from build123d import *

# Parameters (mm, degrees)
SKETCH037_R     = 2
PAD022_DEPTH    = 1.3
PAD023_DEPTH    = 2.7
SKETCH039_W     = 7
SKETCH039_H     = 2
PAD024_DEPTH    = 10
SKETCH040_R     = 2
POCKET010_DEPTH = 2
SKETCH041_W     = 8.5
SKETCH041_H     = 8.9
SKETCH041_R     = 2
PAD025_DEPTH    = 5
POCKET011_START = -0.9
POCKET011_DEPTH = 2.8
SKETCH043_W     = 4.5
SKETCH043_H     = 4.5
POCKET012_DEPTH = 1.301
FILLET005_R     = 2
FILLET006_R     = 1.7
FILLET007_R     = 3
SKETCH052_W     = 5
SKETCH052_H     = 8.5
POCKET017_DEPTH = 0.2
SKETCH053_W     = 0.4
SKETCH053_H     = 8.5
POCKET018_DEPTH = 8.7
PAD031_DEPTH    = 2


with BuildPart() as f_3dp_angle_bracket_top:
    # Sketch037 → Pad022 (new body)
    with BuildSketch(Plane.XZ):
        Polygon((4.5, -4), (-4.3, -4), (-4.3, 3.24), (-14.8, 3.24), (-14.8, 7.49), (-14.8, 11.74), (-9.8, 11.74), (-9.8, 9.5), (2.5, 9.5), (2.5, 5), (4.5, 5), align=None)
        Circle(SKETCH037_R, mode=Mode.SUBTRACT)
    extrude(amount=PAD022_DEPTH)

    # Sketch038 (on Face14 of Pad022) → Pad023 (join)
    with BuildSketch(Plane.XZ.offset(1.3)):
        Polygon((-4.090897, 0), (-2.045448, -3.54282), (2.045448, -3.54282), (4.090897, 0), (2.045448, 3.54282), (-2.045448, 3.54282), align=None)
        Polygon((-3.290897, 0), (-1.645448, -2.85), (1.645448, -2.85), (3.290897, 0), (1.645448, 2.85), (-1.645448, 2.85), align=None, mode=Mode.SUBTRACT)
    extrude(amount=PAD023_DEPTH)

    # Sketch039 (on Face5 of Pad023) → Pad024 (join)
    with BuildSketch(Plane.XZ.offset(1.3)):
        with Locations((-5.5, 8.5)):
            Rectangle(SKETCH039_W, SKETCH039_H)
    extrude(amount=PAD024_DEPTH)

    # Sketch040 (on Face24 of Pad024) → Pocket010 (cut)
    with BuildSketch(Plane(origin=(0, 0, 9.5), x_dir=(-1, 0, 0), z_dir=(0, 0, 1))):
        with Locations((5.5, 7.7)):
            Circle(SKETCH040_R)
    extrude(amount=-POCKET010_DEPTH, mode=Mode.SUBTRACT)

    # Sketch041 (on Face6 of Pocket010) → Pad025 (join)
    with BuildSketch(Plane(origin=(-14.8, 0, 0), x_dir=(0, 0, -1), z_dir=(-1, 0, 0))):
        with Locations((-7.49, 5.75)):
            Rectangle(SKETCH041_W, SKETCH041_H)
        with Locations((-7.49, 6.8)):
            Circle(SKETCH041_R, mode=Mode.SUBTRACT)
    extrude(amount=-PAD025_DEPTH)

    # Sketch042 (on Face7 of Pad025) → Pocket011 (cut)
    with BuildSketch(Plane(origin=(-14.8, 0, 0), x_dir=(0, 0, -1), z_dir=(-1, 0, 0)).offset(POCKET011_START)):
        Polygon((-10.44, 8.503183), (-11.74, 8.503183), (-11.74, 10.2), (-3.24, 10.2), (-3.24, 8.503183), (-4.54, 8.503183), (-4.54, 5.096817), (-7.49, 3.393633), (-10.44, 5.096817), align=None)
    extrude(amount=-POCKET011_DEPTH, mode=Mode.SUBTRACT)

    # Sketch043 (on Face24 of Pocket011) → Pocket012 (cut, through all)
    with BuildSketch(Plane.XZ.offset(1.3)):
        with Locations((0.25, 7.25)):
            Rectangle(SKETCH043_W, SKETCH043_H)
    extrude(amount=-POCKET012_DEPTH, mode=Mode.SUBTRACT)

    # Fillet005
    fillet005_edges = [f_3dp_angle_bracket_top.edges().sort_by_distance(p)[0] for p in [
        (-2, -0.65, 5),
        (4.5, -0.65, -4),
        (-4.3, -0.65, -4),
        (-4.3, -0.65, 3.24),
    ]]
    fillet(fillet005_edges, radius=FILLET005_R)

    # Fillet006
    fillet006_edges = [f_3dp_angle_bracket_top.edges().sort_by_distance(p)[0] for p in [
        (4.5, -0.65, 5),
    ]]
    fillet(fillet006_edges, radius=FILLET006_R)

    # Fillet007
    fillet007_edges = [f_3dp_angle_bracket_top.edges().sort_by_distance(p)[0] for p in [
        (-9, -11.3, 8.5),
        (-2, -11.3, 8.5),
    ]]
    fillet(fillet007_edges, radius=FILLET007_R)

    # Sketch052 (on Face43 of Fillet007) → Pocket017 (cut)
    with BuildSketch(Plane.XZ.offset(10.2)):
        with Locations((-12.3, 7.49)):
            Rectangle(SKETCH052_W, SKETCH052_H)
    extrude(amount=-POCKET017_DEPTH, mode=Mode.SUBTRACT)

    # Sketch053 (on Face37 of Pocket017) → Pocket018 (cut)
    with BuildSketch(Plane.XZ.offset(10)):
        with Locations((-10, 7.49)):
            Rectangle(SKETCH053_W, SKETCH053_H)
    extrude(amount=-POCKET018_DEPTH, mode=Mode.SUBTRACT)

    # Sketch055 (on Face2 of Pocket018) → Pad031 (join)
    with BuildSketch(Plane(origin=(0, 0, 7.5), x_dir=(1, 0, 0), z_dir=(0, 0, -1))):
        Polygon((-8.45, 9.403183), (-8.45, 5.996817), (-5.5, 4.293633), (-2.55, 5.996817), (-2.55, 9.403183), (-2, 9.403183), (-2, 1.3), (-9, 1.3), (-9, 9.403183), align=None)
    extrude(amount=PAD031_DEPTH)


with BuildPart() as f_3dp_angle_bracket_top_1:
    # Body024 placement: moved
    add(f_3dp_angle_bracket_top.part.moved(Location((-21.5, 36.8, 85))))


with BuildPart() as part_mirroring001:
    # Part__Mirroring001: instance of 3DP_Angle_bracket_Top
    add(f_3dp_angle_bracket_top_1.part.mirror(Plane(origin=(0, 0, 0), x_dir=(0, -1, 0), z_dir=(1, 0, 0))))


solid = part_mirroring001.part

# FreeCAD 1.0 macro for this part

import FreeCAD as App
import Part
import Sketcher

V = App.Vector
Q = App.Units.Quantity


def edges_at(feature, points):
    """Names of the edges that pass closest to the given points."""
    edges = feature.Shape.Edges
    near = lambda p: min(range(len(edges)), key=lambda i: edges[i].distToShape(Part.Vertex(*p))[0])
    return sorted({f"Edge{near(p) + 1}" for p in points})


def add_polygon(sketch, points):
    """Adds a closed chain of lines whose ends are joined by coincident constraints."""
    first, n = sketch.GeometryCount, len(points)
    for a, b in zip(points, points[1:] + points[:1]):
        sketch.addGeometry(Part.LineSegment(App.Vector(*a, 0), App.Vector(*b, 0)), False)
    for i in range(n):
        sketch.addConstraint(Sketcher.Constraint("Coincident", first + i, 2, first + (i + 1) % n, 1))

doc = App.newDocument("Part")
body = doc.addObject("PartDesign::Body", "Body")

# Sketch on XZ plane
sketch1 = body.newObject("Sketcher::SketchObject", "Sketch")
sketch1.AttachmentSupport = (doc.getObject("XZ_Plane"), [""])
sketch1.MapMode = "FlatFace"
add_polygon(sketch1, [(-4.3, -4), (4.5, -4), (4.5, 5), (2.5, 5), (2.5, 9.5), (-9.8, 9.5), (-9.8, 11.74), (-14.8, 11.74), (-14.8, 3.24), (-4.3, 3.24)])  # lines 0-9
sketch1.addGeometry(Part.Circle(V(0, 0, 0), V(0, 0, 1), 2), False)  # 10
sketch1.addConstraint(Sketcher.Constraint("Horizontal", 0))
sketch1.addConstraint(Sketcher.Constraint("Vertical", 1))
sketch1.addConstraint(Sketcher.Constraint("Horizontal", 2))
sketch1.addConstraint(Sketcher.Constraint("Vertical", 3))
sketch1.addConstraint(Sketcher.Constraint("Horizontal", 4))
sketch1.addConstraint(Sketcher.Constraint("Vertical", 5))
sketch1.addConstraint(Sketcher.Constraint("Horizontal", 6))
sketch1.addConstraint(Sketcher.Constraint("Vertical", 7))
sketch1.addConstraint(Sketcher.Constraint("Horizontal", 8))
sketch1.addConstraint(Sketcher.Constraint("Vertical", 9))
sketch1.addConstraint(Sketcher.Constraint("Coincident", 10, 3, -1, 1))
sketch1.addConstraint(Sketcher.Constraint("Diameter", 10, 4.0))
sketch1.addConstraint(Sketcher.Constraint("DistanceX", 2, 2, 2, 1, 2.0))
sketch1.addConstraint(Sketcher.Constraint("DistanceX", 6, 2, 6, 1, 5.0))
sketch1.addConstraint(Sketcher.Constraint("DistanceY", 1, 1, 1, 2, 9.0))
sketch1.addConstraint(Sketcher.Constraint("DistanceX", 0, 1, 0, 2, 8.8))
sketch1.addConstraint(Sketcher.Constraint("DistanceX", 4, 2, 4, 1, 12.3))
sketch1.addConstraint(Sketcher.Constraint("DistanceY", 3, 1, 3, 2, 4.5))
sketch1.addConstraint(Sketcher.Constraint("DistanceY", 7, 2, 7, 1, 8.5))
sketch1.addConstraint(Sketcher.Constraint("DistanceY", 0, 2, -1, 1, 4.0))
sketch1.addConstraint(Sketcher.Constraint("DistanceY", 5, 1, 5, 2, 2.24))
sketch1.addConstraint(Sketcher.Constraint("DistanceX", -1, 1, 0, 2, 4.5))
pad1 = body.newObject("PartDesign::Pad", "Pad")
pad1.Profile = sketch1
pad1.Length = 1.3

# Sketch on XZ plane
sketch2 = body.newObject("Sketcher::SketchObject", "Sketch001")
sketch2.AttachmentSupport = (doc.getObject("XZ_Plane"), [""])
sketch2.MapMode = "FlatFace"
sketch2.AttachmentOffset = App.Placement(V(0, 0, 1.3), App.Rotation())
add_polygon(sketch2, [(-4.090897, 0), (-2.045448, -3.54282), (2.045448, -3.54282), (4.090897, 0), (2.045448, 3.54282), (-2.045448, 3.54282)])  # lines 0-5
add_polygon(sketch2, [(-1.645448, -2.85), (-3.290897, 0), (-1.645448, 2.85), (1.645448, 2.85), (3.290897, 0), (1.645448, -2.85)])  # lines 6-11
sketch2.addConstraint(Sketcher.Constraint("Horizontal", 1))
sketch2.addConstraint(Sketcher.Constraint("Horizontal", 4))
sketch2.addConstraint(Sketcher.Constraint("Horizontal", 8))
sketch2.addConstraint(Sketcher.Constraint("Horizontal", 11))
sketch2.addConstraint(Sketcher.Constraint("Symmetric", 0, 2, 3, 2, -1, 1))
sketch2.addConstraint(Sketcher.Constraint("Symmetric", 2, 2, 5, 2, -1, 1))
sketch2.addConstraint(Sketcher.Constraint("Symmetric", 6, 2, 9, 2, -1, 1))
sketch2.addConstraint(Sketcher.Constraint("Symmetric", 7, 2, 10, 2, -1, 1))
sketch2.addConstraint(Sketcher.Constraint("PointOnObject", 2, 2, -1))
sketch2.addConstraint(Sketcher.Constraint("PointOnObject", 6, 2, -1))
sketch2.addConstraint(Sketcher.Constraint("Parallel", 2, 5))
sketch2.addConstraint(Sketcher.Constraint("Parallel", 3, 6))
sketch2.addConstraint(Sketcher.Constraint("Parallel", 5, 7))
sketch2.addConstraint(Sketcher.Constraint("Parallel", 6, 9))
sketch2.addConstraint(Sketcher.Constraint("Vertical", 1, 2, 3, 2))
sketch2.addConstraint(Sketcher.Constraint("Angle", 0, Q("-59.999989 deg")))
sketch2.addConstraint(Sketcher.Constraint("DistanceX", 5, 2, 6, 2, 0.8))
sketch2.addConstraint(Sketcher.Constraint("DistanceX", 4, 2, 7, 2, 0.4))
sketch2.addConstraint(Sketcher.Constraint("DistanceY", 10, 2, 8, 2, 5.7))
sketch2.addConstraint(Sketcher.Constraint("DistanceX", 1, 1, 1, 2, 4.090896))
pad2 = body.newObject("PartDesign::Pad", "Pad001")
pad2.Profile = sketch2
pad2.Length = 2.7

# Sketch on XZ plane
sketch3 = body.newObject("Sketcher::SketchObject", "Sketch002")
sketch3.AttachmentSupport = (doc.getObject("XZ_Plane"), [""])
sketch3.MapMode = "FlatFace"
sketch3.AttachmentOffset = App.Placement(V(0, 0, 1.3), App.Rotation())
add_polygon(sketch3, [(-9, 9.5), (-9, 7.5), (-2, 7.5), (-2, 9.5)])  # lines 0-3
sketch3.addConstraint(Sketcher.Constraint("Vertical", 0))
sketch3.addConstraint(Sketcher.Constraint("Horizontal", 1))
sketch3.addConstraint(Sketcher.Constraint("Vertical", 2))
sketch3.addConstraint(Sketcher.Constraint("Horizontal", 3))
sketch3.addConstraint(Sketcher.Constraint("DistanceX", 1, 1, 1, 2, 7.0))
sketch3.addConstraint(Sketcher.Constraint("DistanceY", 0, 2, 0, 1, 2.0))
sketch3.addConstraint(Sketcher.Constraint("DistanceX", 0, 2, -1, 1, 9.0))
sketch3.addConstraint(Sketcher.Constraint("DistanceY", -1, 1, 0, 2, 7.5))
pad3 = body.newObject("PartDesign::Pad", "Pad002")
pad3.Profile = sketch3
pad3.Length = 10

# Sketch on XY plane
sketch4 = body.newObject("Sketcher::SketchObject", "Sketch003")
sketch4.AttachmentSupport = (doc.getObject("XY_Plane"), [""])
sketch4.MapMode = "FlatFace"
sketch4.AttachmentOffset = App.Placement(V(0, 0, 9.5), App.Rotation())
sketch4.addGeometry(Part.Circle(V(-5.5, -7.7, 0), V(0, 0, 1), 2), False)
sketch4.addConstraint(Sketcher.Constraint("Diameter", 0, 4.0))
sketch4.addConstraint(Sketcher.Constraint("DistanceX", 0, 3, -1, 1, 5.5))
sketch4.addConstraint(Sketcher.Constraint("DistanceY", 0, 3, -1, 1, 7.7))
pocket1 = body.newObject("PartDesign::Pocket", "Pocket")
pocket1.Profile = sketch4
pocket1.Length = 2

# Sketch on YZ plane
sketch5 = body.newObject("Sketcher::SketchObject", "Sketch004")
sketch5.AttachmentSupport = (doc.getObject("YZ_Plane"), [""])
sketch5.MapMode = "FlatFace"
sketch5.AttachmentOffset = App.Placement(V(0, 0, -14.8), App.Rotation())
add_polygon(sketch5, [(-10.2, 11.74), (-1.3, 11.74), (-1.3, 3.24), (-10.2, 3.24)])  # lines 0-3
sketch5.addGeometry(Part.Circle(V(-6.8, 7.49, 0), V(0, 0, 1), 2), False)  # 4
sketch5.addConstraint(Sketcher.Constraint("Horizontal", 0))
sketch5.addConstraint(Sketcher.Constraint("Vertical", 1))
sketch5.addConstraint(Sketcher.Constraint("Horizontal", 2))
sketch5.addConstraint(Sketcher.Constraint("Vertical", 3))
sketch5.addConstraint(Sketcher.Constraint("Diameter", 4, 4.0))
sketch5.addConstraint(Sketcher.Constraint("DistanceX", 0, 1, 0, 2, 8.9))
sketch5.addConstraint(Sketcher.Constraint("DistanceY", 1, 2, 1, 1, 8.5))
sketch5.addConstraint(Sketcher.Constraint("DistanceX", 4, 3, -1, 1, 6.8))
sketch5.addConstraint(Sketcher.Constraint("DistanceX", 0, 2, -1, 1, 1.3))
sketch5.addConstraint(Sketcher.Constraint("DistanceY", -1, 1, 4, 3, 7.49))
sketch5.addConstraint(Sketcher.Constraint("DistanceY", -1, 1, 0, 2, 11.74))
pad4 = body.newObject("PartDesign::Pad", "Pad003")
pad4.Profile = sketch5
pad4.Length = 5

# Sketch on YZ plane
sketch6 = body.newObject("Sketcher::SketchObject", "Sketch005")
sketch6.AttachmentSupport = (doc.getObject("YZ_Plane"), [""])
sketch6.MapMode = "FlatFace"
sketch6.AttachmentOffset = App.Placement(V(0, 0, -13.9), App.Rotation())
add_polygon(sketch6, [(-8.503183, 11.74), (-8.503183, 10.44), (-5.096817, 10.44), (-3.393633, 7.49), (-5.096817, 4.54), (-8.503183, 4.54), (-8.503183, 3.24), (-10.2, 3.24), (-10.2, 11.74)])  # lines 0-8
sketch6.addConstraint(Sketcher.Constraint("Vertical", 0))
sketch6.addConstraint(Sketcher.Constraint("Horizontal", 1))
sketch6.addConstraint(Sketcher.Constraint("Horizontal", 4))
sketch6.addConstraint(Sketcher.Constraint("Vertical", 5))
sketch6.addConstraint(Sketcher.Constraint("Horizontal", 6))
sketch6.addConstraint(Sketcher.Constraint("Vertical", 7))
sketch6.addConstraint(Sketcher.Constraint("Horizontal", 8))
sketch6.addConstraint(Sketcher.Constraint("Vertical", 1, 2, 3, 2))
sketch6.addConstraint(Sketcher.Constraint("Vertical", 0, 2, 4, 2))
sketch6.addConstraint(Sketcher.Constraint("Equal", 0, 5))
sketch6.addConstraint(Sketcher.Constraint("Equal", 2, 3))
sketch6.addConstraint(Sketcher.Constraint("Angle", 2, Q("-59.99999 deg")))
sketch6.addConstraint(Sketcher.Constraint("DistanceY", 0, 2, 0, 1, 1.3))
sketch6.addConstraint(Sketcher.Constraint("DistanceY", 7, 1, 7, 2, 8.5))
sketch6.addConstraint(Sketcher.Constraint("DistanceX", 6, 2, -1, 1, 10.2))
sketch6.addConstraint(Sketcher.Constraint("DistanceY", -1, 1, 0, 2, 10.44))
sketch6.addConstraint(Sketcher.Constraint("DistanceX", 1, 1, 1, 2, 3.406366))
sketch6.addConstraint(Sketcher.Constraint("DistanceX", 6, 2, 6, 1, 1.696817))
pocket2 = body.newObject("PartDesign::Pocket", "Pocket001")
pocket2.Profile = sketch6
pocket2.Length = 2.8
pocket2.Reversed = True

# Sketch on XZ plane
sketch7 = body.newObject("Sketcher::SketchObject", "Sketch006")
sketch7.AttachmentSupport = (doc.getObject("XZ_Plane"), [""])
sketch7.MapMode = "FlatFace"
sketch7.AttachmentOffset = App.Placement(V(0, 0, 1.3), App.Rotation())
add_polygon(sketch7, [(-2, 9.5), (-2, 5), (2.5, 5), (2.5, 9.5)])  # lines 0-3
sketch7.addConstraint(Sketcher.Constraint("Vertical", 0))
sketch7.addConstraint(Sketcher.Constraint("Horizontal", 1))
sketch7.addConstraint(Sketcher.Constraint("Vertical", 2))
sketch7.addConstraint(Sketcher.Constraint("Horizontal", 3))
sketch7.addConstraint(Sketcher.Constraint("Equal", 3, 0))
sketch7.addConstraint(Sketcher.Constraint("DistanceX", 1, 1, 1, 2, 4.5))
sketch7.addConstraint(Sketcher.Constraint("DistanceX", 0, 2, -1, 1, 2.0))
sketch7.addConstraint(Sketcher.Constraint("DistanceY", -1, 1, 0, 2, 5.0))
pocket3 = body.newObject("PartDesign::Pocket", "Pocket002")
pocket3.Profile = sketch7
pocket3.Type = "ThroughAll"
doc.recompute()

fillet = body.newObject("PartDesign::Fillet", "Fillet")
fillet.Base = (pocket3, edges_at(pocket3, [
    (-2, -0.65, 5),
    (4.5, -0.65, -4),
    (-4.3, -0.65, -4),
    (-4.3, -0.65, 3.24),
]))
fillet.Radius = 2
doc.recompute()

fillet2 = body.newObject("PartDesign::Fillet", "Fillet001")
fillet2.Base = (fillet, edges_at(fillet, [(4.5, -0.65, 5)]))
fillet2.Radius = 1.7
doc.recompute()

fillet3 = body.newObject("PartDesign::Fillet", "Fillet002")
fillet3.Base = (fillet2, edges_at(fillet2, [(-9, -11.3, 8.5), (-2, -11.3, 8.5)]))
fillet3.Radius = 3

# Sketch on XZ plane
sketch8 = body.newObject("Sketcher::SketchObject", "Sketch007")
sketch8.AttachmentSupport = (doc.getObject("XZ_Plane"), [""])
sketch8.MapMode = "FlatFace"
sketch8.AttachmentOffset = App.Placement(V(0, 0, 10.2), App.Rotation())
add_polygon(sketch8, [(-14.8, 11.74), (-14.8, 3.24), (-9.8, 3.24), (-9.8, 11.74)])  # lines 0-3
sketch8.addConstraint(Sketcher.Constraint("Vertical", 0))
sketch8.addConstraint(Sketcher.Constraint("Horizontal", 1))
sketch8.addConstraint(Sketcher.Constraint("Vertical", 2))
sketch8.addConstraint(Sketcher.Constraint("Horizontal", 3))
sketch8.addConstraint(Sketcher.Constraint("DistanceX", 1, 1, 1, 2, 5.0))
sketch8.addConstraint(Sketcher.Constraint("DistanceY", 0, 2, 0, 1, 8.5))
sketch8.addConstraint(Sketcher.Constraint("DistanceX", 0, 2, -1, 1, 14.8))
sketch8.addConstraint(Sketcher.Constraint("DistanceY", -1, 1, 0, 2, 3.24))
pocket4 = body.newObject("PartDesign::Pocket", "Pocket003")
pocket4.Profile = sketch8
pocket4.Length = 0.2

# Sketch on XZ plane
sketch9 = body.newObject("Sketcher::SketchObject", "Sketch008")
sketch9.AttachmentSupport = (doc.getObject("XZ_Plane"), [""])
sketch9.MapMode = "FlatFace"
sketch9.AttachmentOffset = App.Placement(V(0, 0, 10), App.Rotation())
add_polygon(sketch9, [(-10.2, 11.74), (-10.2, 3.24), (-9.8, 3.24), (-9.8, 11.74)])  # lines 0-3
sketch9.addConstraint(Sketcher.Constraint("Vertical", 0))
sketch9.addConstraint(Sketcher.Constraint("Horizontal", 1))
sketch9.addConstraint(Sketcher.Constraint("Vertical", 2))
sketch9.addConstraint(Sketcher.Constraint("Horizontal", 3))
sketch9.addConstraint(Sketcher.Constraint("DistanceX", 1, 1, 1, 2, 0.4))
sketch9.addConstraint(Sketcher.Constraint("DistanceY", 0, 2, 0, 1, 8.5))
sketch9.addConstraint(Sketcher.Constraint("DistanceX", 0, 2, -1, 1, 10.2))
sketch9.addConstraint(Sketcher.Constraint("DistanceY", -1, 1, 0, 2, 3.24))
pocket5 = body.newObject("PartDesign::Pocket", "Pocket004")
pocket5.Profile = sketch9
pocket5.Length = 8.7

# Sketch on XY plane
sketch10 = body.newObject("Sketcher::SketchObject", "Sketch009")
sketch10.AttachmentSupport = (doc.getObject("XY_Plane"), [""])
sketch10.MapMode = "FlatFace"
sketch10.AttachmentOffset = App.Placement(V(0, 0, 7.5), App.Rotation())
add_polygon(sketch10, [(-8.45, -5.996817), (-8.45, -9.403183), (-9, -9.403183), (-9, -1.3), (-2, -1.3), (-2, -9.403183), (-2.55, -9.403183), (-2.55, -5.996817), (-5.5, -4.293633)])  # lines 0-8
sketch10.addConstraint(Sketcher.Constraint("Vertical", 0))
sketch10.addConstraint(Sketcher.Constraint("Horizontal", 1))
sketch10.addConstraint(Sketcher.Constraint("Vertical", 2))
sketch10.addConstraint(Sketcher.Constraint("Horizontal", 3))
sketch10.addConstraint(Sketcher.Constraint("Vertical", 4))
sketch10.addConstraint(Sketcher.Constraint("Horizontal", 5))
sketch10.addConstraint(Sketcher.Constraint("Vertical", 6))
sketch10.addConstraint(Sketcher.Constraint("Horizontal", 1, 2, 4, 2))
sketch10.addConstraint(Sketcher.Constraint("Horizontal", 6, 2, 8, 2))
sketch10.addConstraint(Sketcher.Constraint("Equal", 1, 5))
sketch10.addConstraint(Sketcher.Constraint("Equal", 7, 8))
sketch10.addConstraint(Sketcher.Constraint("DistanceX", 3, 1, 3, 2, 7.0))
sketch10.addConstraint(Sketcher.Constraint("Angle", 7, Q("149.99999 deg")))
sketch10.addConstraint(Sketcher.Constraint("DistanceX", 1, 2, -1, 1, 9.0))
sketch10.addConstraint(Sketcher.Constraint("DistanceX", 1, 2, 1, 1, 0.55))
sketch10.addConstraint(Sketcher.Constraint("DistanceY", 2, 2, -1, 1, 1.3))
sketch10.addConstraint(Sketcher.Constraint("DistanceY", 0, 2, 0, 1, 3.406366))
sketch10.addConstraint(Sketcher.Constraint("DistanceY", 2, 1, 2, 2, 8.103183))
pad5 = body.newObject("PartDesign::Pad", "Pad004")
pad5.Profile = sketch10
pad5.Length = 2
pad5.Reversed = True
body2 = doc.addObject("PartDesign::Body", "Body001")
doc.recompute()

body.Placement = App.Placement(V(-21.5, 36.8, 85), App.Rotation(V(0, 0, 1), 0))
boolean = body2.newObject("PartDesign::Boolean", "Boolean")
boolean.Type = "Fuse"
boolean.addObjects([body])
body3 = doc.addObject("PartDesign::Body", "Body002")
doc.recompute()

mirroring = doc.addObject("Part::Mirroring", "Mirroring")
mirroring.Source = body2
mirroring.Base = V(0, 0, 0)
mirroring.Normal = V(1, 0, 0)
body3.BaseFeature = mirroring
doc.recompute()
body2.Visibility = False
mirroring.Visibility = False

doc.recompute()
